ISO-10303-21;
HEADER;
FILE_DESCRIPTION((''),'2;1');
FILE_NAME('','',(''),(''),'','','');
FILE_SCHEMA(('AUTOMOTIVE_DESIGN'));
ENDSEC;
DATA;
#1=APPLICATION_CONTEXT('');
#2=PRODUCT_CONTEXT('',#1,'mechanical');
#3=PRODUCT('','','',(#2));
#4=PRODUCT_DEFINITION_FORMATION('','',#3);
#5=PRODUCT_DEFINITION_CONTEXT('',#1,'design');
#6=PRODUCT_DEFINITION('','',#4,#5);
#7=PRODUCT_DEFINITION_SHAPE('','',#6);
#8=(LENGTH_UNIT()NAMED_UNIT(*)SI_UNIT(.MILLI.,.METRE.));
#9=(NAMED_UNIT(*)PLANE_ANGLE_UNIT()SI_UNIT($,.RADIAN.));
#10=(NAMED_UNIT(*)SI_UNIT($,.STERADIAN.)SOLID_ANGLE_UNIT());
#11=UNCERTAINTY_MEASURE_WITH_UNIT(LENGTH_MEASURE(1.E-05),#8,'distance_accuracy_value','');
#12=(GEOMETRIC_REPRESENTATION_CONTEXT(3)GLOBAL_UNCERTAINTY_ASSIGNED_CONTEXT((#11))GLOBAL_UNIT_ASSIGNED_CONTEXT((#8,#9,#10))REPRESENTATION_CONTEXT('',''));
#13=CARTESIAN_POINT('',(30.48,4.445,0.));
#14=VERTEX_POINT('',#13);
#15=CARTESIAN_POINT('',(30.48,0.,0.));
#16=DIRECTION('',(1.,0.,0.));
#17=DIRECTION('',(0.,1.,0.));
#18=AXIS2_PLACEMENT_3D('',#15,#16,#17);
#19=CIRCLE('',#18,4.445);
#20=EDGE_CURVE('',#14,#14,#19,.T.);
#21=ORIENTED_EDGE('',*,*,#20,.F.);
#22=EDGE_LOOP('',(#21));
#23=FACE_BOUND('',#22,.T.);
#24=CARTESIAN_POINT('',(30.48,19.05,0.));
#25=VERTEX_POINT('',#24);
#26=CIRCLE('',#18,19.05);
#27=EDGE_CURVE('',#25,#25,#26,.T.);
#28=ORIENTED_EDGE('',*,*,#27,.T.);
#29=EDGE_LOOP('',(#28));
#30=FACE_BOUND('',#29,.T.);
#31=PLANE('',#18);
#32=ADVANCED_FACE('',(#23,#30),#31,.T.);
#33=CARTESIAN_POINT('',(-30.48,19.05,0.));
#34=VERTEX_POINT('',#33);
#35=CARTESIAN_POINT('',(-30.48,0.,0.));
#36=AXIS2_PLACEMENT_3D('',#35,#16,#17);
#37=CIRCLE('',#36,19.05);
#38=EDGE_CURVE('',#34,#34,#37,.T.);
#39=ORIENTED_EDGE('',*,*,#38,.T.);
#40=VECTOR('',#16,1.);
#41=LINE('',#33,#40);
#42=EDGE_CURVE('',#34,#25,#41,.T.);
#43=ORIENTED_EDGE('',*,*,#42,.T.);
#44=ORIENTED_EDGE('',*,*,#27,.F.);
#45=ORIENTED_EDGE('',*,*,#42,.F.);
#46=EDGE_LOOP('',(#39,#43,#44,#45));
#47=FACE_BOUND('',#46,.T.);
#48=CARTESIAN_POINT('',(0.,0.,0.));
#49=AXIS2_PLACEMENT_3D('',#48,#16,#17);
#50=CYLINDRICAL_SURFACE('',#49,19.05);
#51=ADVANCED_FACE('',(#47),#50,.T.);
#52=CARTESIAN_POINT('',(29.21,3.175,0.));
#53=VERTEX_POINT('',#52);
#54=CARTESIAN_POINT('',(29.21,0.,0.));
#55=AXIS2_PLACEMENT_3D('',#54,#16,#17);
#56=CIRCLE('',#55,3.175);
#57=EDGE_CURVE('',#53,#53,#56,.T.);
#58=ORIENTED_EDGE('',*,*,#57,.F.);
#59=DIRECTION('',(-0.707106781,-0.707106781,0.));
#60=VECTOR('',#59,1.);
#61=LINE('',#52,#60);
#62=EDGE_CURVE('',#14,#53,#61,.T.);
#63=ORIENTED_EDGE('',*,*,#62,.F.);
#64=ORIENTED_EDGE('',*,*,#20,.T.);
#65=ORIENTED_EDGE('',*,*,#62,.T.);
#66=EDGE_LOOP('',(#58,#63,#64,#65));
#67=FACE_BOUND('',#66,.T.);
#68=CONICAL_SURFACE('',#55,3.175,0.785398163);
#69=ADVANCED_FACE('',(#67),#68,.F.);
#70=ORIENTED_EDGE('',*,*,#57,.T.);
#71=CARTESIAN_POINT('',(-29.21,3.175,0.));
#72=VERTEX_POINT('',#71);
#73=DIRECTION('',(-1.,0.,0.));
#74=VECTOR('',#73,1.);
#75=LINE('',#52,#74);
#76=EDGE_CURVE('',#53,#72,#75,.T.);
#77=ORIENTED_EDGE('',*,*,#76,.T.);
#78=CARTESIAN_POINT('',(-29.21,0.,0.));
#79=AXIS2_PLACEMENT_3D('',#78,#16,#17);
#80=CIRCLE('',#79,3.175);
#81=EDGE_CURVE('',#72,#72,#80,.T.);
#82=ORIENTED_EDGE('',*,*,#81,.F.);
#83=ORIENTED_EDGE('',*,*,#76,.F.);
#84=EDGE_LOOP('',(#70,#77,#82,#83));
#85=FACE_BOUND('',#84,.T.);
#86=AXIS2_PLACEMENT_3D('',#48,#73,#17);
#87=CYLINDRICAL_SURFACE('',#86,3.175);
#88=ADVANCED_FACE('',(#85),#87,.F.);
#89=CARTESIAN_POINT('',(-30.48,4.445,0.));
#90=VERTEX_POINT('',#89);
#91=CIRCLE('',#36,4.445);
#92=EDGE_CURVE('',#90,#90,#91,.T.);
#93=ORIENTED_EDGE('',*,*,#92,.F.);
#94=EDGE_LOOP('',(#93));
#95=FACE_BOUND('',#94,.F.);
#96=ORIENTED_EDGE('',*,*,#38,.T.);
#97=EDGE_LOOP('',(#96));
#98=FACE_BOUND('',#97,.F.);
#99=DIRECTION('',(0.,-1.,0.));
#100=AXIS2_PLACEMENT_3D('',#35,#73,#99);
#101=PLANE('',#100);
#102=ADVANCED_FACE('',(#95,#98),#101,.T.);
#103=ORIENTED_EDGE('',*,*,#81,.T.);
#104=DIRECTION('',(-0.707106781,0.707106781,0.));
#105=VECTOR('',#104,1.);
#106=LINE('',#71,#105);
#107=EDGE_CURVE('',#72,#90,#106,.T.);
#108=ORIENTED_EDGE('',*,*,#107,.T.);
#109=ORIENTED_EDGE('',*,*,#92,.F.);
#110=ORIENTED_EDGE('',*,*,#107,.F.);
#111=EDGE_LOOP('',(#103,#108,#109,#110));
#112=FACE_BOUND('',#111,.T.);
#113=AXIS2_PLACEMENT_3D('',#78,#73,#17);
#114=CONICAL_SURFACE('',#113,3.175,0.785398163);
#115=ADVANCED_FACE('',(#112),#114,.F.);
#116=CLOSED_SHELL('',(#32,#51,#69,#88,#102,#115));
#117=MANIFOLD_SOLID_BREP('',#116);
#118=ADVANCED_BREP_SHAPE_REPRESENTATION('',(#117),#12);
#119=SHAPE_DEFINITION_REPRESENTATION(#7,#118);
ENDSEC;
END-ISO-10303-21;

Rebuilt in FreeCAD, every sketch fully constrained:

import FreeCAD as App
import Part
import Sketcher

V = App.Vector
Q = App.Units.Quantity


def edges_at(feature, points):
    """Names of the edges that pass closest to the given points."""
    edges = feature.Shape.Edges
    near = lambda p: min(range(len(edges)), key=lambda i: edges[i].distToShape(Part.Vertex(*p))[0])
    return sorted({f"Edge{near(p) + 1}" for p in points})

doc = App.newDocument("Part")
body = doc.addObject("PartDesign::Body", "Body")

# Sketch on YZ plane
sketch1 = body.newObject("Sketcher::SketchObject", "Sketch")
sketch1.AttachmentSupport = (doc.getObject("YZ_Plane"), [""])
sketch1.MapMode = "FlatFace"
sketch1.addGeometry([
    Part.Circle(V(0, 0, 0), V(0, 0, 1), 19.1),
    Part.Circle(V(0, 0, 0), V(0, 0, 1), 3.2),
], False)
sketch1.addConstraint([
    Sketcher.Constraint("Coincident", 0, 3, -1, 1),
    Sketcher.Constraint("Coincident", 1, 3, -1, 1),
    Sketcher.Constraint("Diameter", 0, Q("1.5 in")),
    Sketcher.Constraint("Diameter", 1, Q("0.25 in")),
])
pad1 = body.newObject("PartDesign::Pad", "Pad")
pad1.Profile = sketch1
pad1.Length = Q("1.2 in")
body2 = doc.addObject("PartDesign::Body", "Body001")
doc.recompute()

body2.BaseFeature = body
doc.recompute()

mirroring = doc.addObject("Part::Mirroring", "Mirroring")
mirroring.Source = body
mirroring.Base = V(0, 0, 0)
mirroring.Normal = V(-1, 0, 0)
body3 = doc.addObject("PartDesign::Body", "Body002")
body3.BaseFeature = mirroring
boolean = body2.newObject("PartDesign::Boolean", "Boolean")
boolean.Type = "Fuse"
boolean.addObjects([body3])
doc.recompute()

chamfer = body2.newObject("PartDesign::Chamfer", "Chamfer")
chamfer.Base = (boolean, edges_at(boolean, [(30.48, -3.175, 0), (-30.48, -3.175, 0)]))
chamfer.Size = Q("0.05 in")
mirroring.Visibility = False

doc.recompute()
